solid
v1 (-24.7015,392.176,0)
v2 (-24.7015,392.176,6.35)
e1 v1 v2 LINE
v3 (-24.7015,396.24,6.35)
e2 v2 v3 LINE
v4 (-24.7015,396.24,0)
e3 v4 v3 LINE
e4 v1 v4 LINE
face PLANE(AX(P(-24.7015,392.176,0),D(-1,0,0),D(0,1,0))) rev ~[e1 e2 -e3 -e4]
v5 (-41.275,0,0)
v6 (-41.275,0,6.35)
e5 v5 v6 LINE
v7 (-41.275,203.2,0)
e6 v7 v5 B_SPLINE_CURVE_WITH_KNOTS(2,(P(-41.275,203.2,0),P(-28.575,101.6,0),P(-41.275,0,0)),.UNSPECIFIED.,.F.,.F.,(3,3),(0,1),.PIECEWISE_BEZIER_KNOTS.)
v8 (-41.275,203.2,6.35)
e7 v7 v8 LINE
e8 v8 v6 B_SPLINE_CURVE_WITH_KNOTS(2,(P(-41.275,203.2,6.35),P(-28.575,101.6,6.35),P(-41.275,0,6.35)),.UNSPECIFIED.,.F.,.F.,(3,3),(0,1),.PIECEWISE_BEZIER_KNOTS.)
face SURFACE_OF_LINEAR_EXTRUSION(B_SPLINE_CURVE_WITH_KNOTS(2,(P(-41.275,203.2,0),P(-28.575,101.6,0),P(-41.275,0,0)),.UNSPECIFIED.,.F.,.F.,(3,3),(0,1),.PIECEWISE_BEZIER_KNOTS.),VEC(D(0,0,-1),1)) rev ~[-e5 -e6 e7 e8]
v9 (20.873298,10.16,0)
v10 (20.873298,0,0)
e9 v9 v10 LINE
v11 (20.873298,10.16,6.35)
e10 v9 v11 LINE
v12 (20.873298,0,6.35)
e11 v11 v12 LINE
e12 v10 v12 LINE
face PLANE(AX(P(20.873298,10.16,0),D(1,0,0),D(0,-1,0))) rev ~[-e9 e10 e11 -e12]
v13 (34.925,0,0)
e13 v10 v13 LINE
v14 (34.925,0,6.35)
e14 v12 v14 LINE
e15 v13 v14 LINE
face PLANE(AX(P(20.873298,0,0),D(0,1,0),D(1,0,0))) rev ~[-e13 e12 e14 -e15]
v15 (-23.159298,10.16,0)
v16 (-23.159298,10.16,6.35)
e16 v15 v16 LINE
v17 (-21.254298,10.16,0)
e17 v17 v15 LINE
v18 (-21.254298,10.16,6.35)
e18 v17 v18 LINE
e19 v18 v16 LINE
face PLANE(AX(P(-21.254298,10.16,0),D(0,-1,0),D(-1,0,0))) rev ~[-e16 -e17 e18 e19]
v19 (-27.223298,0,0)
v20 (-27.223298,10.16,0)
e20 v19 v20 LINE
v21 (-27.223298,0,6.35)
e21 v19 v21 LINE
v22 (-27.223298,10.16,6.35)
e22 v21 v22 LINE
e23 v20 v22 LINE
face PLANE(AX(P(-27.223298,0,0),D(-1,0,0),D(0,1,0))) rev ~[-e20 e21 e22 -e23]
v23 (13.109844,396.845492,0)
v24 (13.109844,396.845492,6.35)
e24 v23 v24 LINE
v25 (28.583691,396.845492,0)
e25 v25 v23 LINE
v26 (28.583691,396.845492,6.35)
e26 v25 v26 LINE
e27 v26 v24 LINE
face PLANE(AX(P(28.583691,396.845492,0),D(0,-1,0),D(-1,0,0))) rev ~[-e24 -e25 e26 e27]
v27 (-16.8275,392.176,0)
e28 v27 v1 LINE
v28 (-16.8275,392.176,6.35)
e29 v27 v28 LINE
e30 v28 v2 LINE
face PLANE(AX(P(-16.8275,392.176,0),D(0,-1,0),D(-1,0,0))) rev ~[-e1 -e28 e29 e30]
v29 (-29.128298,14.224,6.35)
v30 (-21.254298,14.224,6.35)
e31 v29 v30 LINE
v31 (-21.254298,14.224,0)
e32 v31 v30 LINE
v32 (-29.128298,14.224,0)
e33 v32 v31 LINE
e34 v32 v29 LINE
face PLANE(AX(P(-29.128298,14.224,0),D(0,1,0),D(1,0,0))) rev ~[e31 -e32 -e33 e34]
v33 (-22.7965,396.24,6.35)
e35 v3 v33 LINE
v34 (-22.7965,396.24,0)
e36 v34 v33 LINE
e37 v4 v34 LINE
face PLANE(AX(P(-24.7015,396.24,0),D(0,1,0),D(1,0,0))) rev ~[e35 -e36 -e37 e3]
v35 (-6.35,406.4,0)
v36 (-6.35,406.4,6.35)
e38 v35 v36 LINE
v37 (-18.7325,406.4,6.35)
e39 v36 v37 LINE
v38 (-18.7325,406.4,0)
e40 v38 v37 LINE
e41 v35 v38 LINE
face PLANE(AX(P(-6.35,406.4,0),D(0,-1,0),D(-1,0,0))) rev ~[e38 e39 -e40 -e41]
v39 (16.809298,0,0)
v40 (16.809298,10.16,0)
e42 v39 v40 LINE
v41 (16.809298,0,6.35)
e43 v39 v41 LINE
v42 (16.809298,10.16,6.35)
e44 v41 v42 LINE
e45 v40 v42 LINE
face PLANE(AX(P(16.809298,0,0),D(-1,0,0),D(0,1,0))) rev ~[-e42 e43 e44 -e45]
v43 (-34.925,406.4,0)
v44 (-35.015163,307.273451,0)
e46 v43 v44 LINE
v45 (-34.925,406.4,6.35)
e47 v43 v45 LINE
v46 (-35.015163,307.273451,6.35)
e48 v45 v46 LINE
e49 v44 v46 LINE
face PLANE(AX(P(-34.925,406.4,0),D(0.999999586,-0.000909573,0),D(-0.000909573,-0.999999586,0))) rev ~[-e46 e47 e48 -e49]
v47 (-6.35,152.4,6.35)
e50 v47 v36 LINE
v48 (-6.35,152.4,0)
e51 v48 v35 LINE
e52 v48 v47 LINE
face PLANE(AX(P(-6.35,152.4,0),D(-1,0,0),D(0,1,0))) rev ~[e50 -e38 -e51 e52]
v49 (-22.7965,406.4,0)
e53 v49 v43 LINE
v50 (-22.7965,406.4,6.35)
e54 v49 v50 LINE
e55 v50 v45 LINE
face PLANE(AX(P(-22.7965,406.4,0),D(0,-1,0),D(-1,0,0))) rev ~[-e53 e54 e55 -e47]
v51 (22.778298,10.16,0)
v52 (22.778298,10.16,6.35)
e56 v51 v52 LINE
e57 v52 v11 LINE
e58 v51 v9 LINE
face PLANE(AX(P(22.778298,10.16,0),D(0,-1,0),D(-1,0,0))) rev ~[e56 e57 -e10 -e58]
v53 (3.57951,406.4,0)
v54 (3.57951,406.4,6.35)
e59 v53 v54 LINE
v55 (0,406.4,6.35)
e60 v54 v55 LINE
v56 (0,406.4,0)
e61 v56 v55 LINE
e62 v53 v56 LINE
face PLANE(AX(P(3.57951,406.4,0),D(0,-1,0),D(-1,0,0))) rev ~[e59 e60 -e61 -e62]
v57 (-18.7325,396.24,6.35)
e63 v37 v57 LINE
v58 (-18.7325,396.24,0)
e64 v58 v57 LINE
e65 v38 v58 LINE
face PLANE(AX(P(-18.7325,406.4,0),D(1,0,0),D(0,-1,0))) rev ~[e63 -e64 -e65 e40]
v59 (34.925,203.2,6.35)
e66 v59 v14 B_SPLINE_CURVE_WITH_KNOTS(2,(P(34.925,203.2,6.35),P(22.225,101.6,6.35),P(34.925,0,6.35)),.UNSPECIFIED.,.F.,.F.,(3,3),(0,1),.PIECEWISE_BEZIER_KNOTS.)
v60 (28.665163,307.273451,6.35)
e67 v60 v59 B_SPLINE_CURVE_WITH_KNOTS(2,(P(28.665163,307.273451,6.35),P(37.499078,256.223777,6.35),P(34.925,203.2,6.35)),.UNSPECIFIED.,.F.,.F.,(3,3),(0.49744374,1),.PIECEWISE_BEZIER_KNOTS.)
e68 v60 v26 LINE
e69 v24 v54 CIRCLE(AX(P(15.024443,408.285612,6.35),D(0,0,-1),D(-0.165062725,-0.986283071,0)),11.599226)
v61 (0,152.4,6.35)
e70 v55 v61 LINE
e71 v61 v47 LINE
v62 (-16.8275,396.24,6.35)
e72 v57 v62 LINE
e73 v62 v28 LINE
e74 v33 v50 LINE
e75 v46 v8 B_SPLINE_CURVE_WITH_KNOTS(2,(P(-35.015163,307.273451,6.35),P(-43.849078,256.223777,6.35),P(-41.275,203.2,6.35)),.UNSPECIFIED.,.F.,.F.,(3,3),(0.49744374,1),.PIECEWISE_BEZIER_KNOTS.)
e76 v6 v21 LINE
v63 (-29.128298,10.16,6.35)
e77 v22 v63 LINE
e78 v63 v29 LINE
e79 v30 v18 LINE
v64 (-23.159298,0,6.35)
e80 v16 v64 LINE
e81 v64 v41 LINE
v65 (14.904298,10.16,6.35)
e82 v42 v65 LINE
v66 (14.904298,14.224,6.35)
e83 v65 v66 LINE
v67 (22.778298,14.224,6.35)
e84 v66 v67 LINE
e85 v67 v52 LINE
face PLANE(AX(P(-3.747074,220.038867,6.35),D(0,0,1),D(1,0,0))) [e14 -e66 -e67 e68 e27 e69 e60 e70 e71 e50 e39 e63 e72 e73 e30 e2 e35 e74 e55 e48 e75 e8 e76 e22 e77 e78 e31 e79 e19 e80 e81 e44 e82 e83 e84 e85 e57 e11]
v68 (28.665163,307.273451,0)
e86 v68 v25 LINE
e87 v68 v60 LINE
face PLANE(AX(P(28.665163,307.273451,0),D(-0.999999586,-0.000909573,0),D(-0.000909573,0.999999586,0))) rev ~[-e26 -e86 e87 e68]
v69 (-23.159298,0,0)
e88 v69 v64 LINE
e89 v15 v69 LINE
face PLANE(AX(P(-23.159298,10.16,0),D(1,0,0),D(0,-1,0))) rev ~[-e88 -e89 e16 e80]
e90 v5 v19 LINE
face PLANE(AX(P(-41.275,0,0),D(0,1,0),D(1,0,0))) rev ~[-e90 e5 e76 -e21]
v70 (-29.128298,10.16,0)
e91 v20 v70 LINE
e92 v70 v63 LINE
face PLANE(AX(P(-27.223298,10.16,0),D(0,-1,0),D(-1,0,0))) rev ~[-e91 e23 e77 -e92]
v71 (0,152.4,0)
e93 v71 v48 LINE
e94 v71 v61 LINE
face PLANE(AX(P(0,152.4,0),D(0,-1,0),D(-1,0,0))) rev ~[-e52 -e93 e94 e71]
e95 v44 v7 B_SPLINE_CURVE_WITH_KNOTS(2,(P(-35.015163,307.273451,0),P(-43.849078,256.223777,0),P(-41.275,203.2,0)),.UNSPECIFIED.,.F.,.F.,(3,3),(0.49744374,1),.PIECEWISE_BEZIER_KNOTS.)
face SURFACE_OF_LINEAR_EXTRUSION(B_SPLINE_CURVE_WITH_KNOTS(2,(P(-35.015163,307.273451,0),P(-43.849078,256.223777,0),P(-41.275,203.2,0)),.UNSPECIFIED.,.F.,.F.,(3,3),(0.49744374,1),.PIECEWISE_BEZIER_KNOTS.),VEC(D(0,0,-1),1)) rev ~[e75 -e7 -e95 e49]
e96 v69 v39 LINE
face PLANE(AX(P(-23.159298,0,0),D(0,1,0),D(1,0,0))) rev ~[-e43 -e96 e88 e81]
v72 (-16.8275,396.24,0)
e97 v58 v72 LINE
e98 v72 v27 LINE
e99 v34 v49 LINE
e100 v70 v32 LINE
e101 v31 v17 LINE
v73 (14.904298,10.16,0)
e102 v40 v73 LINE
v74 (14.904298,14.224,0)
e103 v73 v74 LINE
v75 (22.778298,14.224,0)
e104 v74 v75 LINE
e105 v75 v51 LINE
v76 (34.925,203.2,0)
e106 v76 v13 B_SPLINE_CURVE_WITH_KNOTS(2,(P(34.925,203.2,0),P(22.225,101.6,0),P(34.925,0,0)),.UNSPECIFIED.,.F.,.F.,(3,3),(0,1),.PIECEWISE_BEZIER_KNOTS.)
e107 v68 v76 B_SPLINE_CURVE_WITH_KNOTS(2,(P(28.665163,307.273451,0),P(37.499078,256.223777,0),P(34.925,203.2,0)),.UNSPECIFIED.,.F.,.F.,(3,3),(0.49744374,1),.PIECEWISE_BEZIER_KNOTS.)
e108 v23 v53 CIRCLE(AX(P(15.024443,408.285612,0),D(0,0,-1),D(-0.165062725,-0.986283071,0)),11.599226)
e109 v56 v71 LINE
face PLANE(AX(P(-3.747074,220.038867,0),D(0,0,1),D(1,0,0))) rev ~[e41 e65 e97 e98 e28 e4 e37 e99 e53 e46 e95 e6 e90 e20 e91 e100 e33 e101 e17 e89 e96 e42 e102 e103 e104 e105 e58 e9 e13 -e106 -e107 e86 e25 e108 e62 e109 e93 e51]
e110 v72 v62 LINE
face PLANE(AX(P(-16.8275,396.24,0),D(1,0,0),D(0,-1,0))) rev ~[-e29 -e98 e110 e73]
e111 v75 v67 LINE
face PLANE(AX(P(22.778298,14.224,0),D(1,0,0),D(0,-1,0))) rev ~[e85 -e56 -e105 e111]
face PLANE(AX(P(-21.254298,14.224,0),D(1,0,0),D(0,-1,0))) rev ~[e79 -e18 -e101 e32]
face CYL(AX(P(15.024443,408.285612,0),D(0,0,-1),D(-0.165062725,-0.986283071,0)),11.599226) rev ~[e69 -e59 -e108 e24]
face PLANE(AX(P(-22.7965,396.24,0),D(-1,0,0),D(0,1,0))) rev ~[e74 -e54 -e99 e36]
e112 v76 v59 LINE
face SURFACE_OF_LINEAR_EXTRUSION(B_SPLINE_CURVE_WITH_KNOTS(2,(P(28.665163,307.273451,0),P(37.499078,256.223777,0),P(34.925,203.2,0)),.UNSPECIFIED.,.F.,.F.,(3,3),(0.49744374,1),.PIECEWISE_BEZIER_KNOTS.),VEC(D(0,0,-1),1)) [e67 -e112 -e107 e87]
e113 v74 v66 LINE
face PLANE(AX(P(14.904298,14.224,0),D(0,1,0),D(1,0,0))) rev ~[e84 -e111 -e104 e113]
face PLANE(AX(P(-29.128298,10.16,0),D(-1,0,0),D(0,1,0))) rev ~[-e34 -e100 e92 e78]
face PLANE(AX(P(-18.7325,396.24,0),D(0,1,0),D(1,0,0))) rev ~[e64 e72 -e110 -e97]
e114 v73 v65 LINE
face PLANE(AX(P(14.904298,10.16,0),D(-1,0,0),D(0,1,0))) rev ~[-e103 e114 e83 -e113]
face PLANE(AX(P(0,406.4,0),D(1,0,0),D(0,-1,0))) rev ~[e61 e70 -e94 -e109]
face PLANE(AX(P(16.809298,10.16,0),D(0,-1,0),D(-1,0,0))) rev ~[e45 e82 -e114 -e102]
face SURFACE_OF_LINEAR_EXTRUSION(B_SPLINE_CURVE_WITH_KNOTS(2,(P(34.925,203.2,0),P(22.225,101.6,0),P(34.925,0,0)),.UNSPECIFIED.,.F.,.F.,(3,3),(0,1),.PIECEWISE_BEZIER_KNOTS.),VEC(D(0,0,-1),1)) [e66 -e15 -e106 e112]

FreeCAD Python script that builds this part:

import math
import FreeCAD as App
import Part
import Sketcher
Q = App.Units.Quantity

doc = App.newDocument("Part")
body = doc.addObject("PartDesign::Body", "Body")

# Sketch on XY plane
sketch1 = body.newObject("Sketcher::SketchObject", "Sketch")
sketch1.AttachmentSupport = (doc.getObject("XY_Plane"), [""])
sketch1.MapMode = "FlatFace"
sketch1.addGeometry(Part.LineSegment(App.Vector(-41.275, 0, 0), App.Vector(-27.223298, 0, 0)), False)
sketch1.addGeometry(Part.LineSegment(App.Vector(-27.223298, 0, 0), App.Vector(-27.223298, 10.16, 0)), False)
sketch1.addGeometry(Part.LineSegment(App.Vector(-27.223298, 10.16, 0), App.Vector(-29.128298, 10.16, 0)), False)
sketch1.addGeometry(Part.LineSegment(App.Vector(-29.128298, 10.16, 0), App.Vector(-29.128298, 14.224, 0)), False)
sketch1.addGeometry(Part.LineSegment(App.Vector(-29.128298, 14.224, 0), App.Vector(-21.254298, 14.224, 0)), False)
sketch1.addGeometry(Part.LineSegment(App.Vector(-21.254298, 14.224, 0), App.Vector(-21.254298, 10.16, 0)), False)
sketch1.addGeometry(Part.LineSegment(App.Vector(-21.254298, 10.16, 0), App.Vector(-23.159298, 10.16, 0)), False)
sketch1.addGeometry(Part.LineSegment(App.Vector(-23.159298, 10.16, 0), App.Vector(-23.159298, 0, 0)), False)
sketch1.addGeometry(Part.LineSegment(App.Vector(-23.159298, 0, 0), App.Vector(16.809298, 0, 0)), False)
sketch1.addGeometry(Part.LineSegment(App.Vector(16.809298, 0, 0), App.Vector(16.809298, 10.16, 0)), False)
sketch1.addGeometry(Part.LineSegment(App.Vector(16.809298, 10.16, 0), App.Vector(14.904298, 10.16, 0)), False)
sketch1.addGeometry(Part.LineSegment(App.Vector(14.904298, 10.16, 0), App.Vector(14.904298, 14.224, 0)), False)
sketch1.addGeometry(Part.LineSegment(App.Vector(14.904298, 14.224, 0), App.Vector(22.778298, 14.224, 0)), False)
sketch1.addGeometry(Part.LineSegment(App.Vector(22.778298, 14.224, 0), App.Vector(22.778298, 10.16, 0)), False)
sketch1.addGeometry(Part.LineSegment(App.Vector(22.778298, 10.16, 0), App.Vector(20.873298, 10.16, 0)), False)
sketch1.addGeometry(Part.LineSegment(App.Vector(20.873298, 10.16, 0), App.Vector(20.873298, 0, 0)), False)
sketch1.addGeometry(Part.LineSegment(App.Vector(20.873298, 0, 0), App.Vector(34.925, 0, 0)), False)
sketch1.addGeometry(Part.BSplineCurve([App.Vector(34.925, 203.2, 0), App.Vector(22.225, 101.6, 0), App.Vector(34.925, 0, 0)], [3, 3], [0, 1], False, 2, [1, 1, 1], False), False)
sketch1.addGeometry(Part.BSplineCurve([App.Vector(28.665163, 307.273451, 0), App.Vector(37.499078, 256.223777, 0), App.Vector(34.925, 203.2, 0)], [3, 3], [0.49744374, 1], False, 2, [1, 1, 1], False), False)
sketch1.addGeometry(Part.LineSegment(App.Vector(28.665163, 307.273451, 0), App.Vector(28.583691, 396.845492, 0)), False)
sketch1.addGeometry(Part.LineSegment(App.Vector(28.583691, 396.845492, 0), App.Vector(13.109844, 396.845492, 0)), False)
sketch1.addGeometry(Part.ArcOfCircle(Part.Circle(App.Vector(15.024443, 408.285612, 0), App.Vector(0, 0, 1), 11.599226), math.radians(-170.644273), math.radians(-99.500878)), False)
sketch1.addGeometry(Part.LineSegment(App.Vector(3.57951, 406.4, 0), App.Vector(0, 406.4, 0)), False)
sketch1.addGeometry(Part.LineSegment(App.Vector(0, 406.4, 0), App.Vector(0, 152.4, 0)), False)
sketch1.addGeometry(Part.LineSegment(App.Vector(0, 152.4, 0), App.Vector(-6.35, 152.4, 0)), False)
sketch1.addGeometry(Part.LineSegment(App.Vector(-6.35, 152.4, 0), App.Vector(-6.35, 406.4, 0)), False)
sketch1.addGeometry(Part.LineSegment(App.Vector(-6.35, 406.4, 0), App.Vector(-18.7325, 406.4, 0)), False)
sketch1.addGeometry(Part.LineSegment(App.Vector(-18.7325, 406.4, 0), App.Vector(-18.7325, 396.24, 0)), False)
sketch1.addGeometry(Part.LineSegment(App.Vector(-18.7325, 396.24, 0), App.Vector(-16.8275, 396.24, 0)), False)
sketch1.addGeometry(Part.LineSegment(App.Vector(-16.8275, 396.24, 0), App.Vector(-16.8275, 392.176, 0)), False)
sketch1.addGeometry(Part.LineSegment(App.Vector(-16.8275, 392.176, 0), App.Vector(-24.7015, 392.176, 0)), False)
sketch1.addGeometry(Part.LineSegment(App.Vector(-24.7015, 392.176, 0), App.Vector(-24.7015, 396.24, 0)), False)
sketch1.addGeometry(Part.LineSegment(App.Vector(-24.7015, 396.24, 0), App.Vector(-22.7965, 396.24, 0)), False)
sketch1.addGeometry(Part.LineSegment(App.Vector(-22.7965, 396.24, 0), App.Vector(-22.7965, 406.4, 0)), False)
sketch1.addGeometry(Part.LineSegment(App.Vector(-22.7965, 406.4, 0), App.Vector(-34.925, 406.4, 0)), False)
sketch1.addGeometry(Part.LineSegment(App.Vector(-34.925, 406.4, 0), App.Vector(-35.015163, 307.273451, 0)), False)
sketch1.addGeometry(Part.BSplineCurve([App.Vector(-35.015163, 307.273451, 0), App.Vector(-43.849078, 256.223777, 0), App.Vector(-41.275, 203.2, 0)], [3, 3], [0.49744374, 1], False, 2, [1, 1, 1], False), False)
sketch1.addGeometry(Part.BSplineCurve([App.Vector(-41.275, 203.2, 0), App.Vector(-28.575, 101.6, 0), App.Vector(-41.275, 0, 0)], [3, 3], [0, 1], False, 2, [1, 1, 1], False), False)
sketch1.addConstraint(Sketcher.Constraint("Block", 17))
sketch1.addConstraint(Sketcher.Constraint("Block", 18))
sketch1.addConstraint(Sketcher.Constraint("Block", 36))
sketch1.addConstraint(Sketcher.Constraint("Block", 37))
sketch1.addConstraint(Sketcher.Constraint("Coincident", 0, 2, 1, 1))
sketch1.addConstraint(Sketcher.Constraint("Coincident", 1, 2, 2, 1))
sketch1.addConstraint(Sketcher.Constraint("Coincident", 2, 2, 3, 1))
sketch1.addConstraint(Sketcher.Constraint("Coincident", 3, 2, 4, 1))
sketch1.addConstraint(Sketcher.Constraint("Coincident", 4, 2, 5, 1))
sketch1.addConstraint(Sketcher.Constraint("Coincident", 5, 2, 6, 1))
sketch1.addConstraint(Sketcher.Constraint("Coincident", 6, 2, 7, 1))
sketch1.addConstraint(Sketcher.Constraint("Coincident", 7, 2, 8, 1))
sketch1.addConstraint(Sketcher.Constraint("Coincident", 8, 2, 9, 1))
sketch1.addConstraint(Sketcher.Constraint("Coincident", 9, 2, 10, 1))
sketch1.addConstraint(Sketcher.Constraint("Coincident", 10, 2, 11, 1))
sketch1.addConstraint(Sketcher.Constraint("Coincident", 11, 2, 12, 1))
sketch1.addConstraint(Sketcher.Constraint("Coincident", 12, 2, 13, 1))
sketch1.addConstraint(Sketcher.Constraint("Coincident", 13, 2, 14, 1))
sketch1.addConstraint(Sketcher.Constraint("Coincident", 14, 2, 15, 1))
sketch1.addConstraint(Sketcher.Constraint("Coincident", 15, 2, 16, 1))
sketch1.addConstraint(Sketcher.Constraint("Coincident", 16, 2, 17, 2))
sketch1.addConstraint(Sketcher.Constraint("Coincident", 18, 1, 19, 1))
sketch1.addConstraint(Sketcher.Constraint("Coincident", 19, 2, 20, 1))
sketch1.addConstraint(Sketcher.Constraint("Coincident", 20, 2, 21, 2))
sketch1.addConstraint(Sketcher.Constraint("Coincident", 21, 1, 22, 1))
sketch1.addConstraint(Sketcher.Constraint("Coincident", 22, 2, 23, 1))
sketch1.addConstraint(Sketcher.Constraint("Coincident", 23, 2, 24, 1))
sketch1.addConstraint(Sketcher.Constraint("Coincident", 24, 2, 25, 1))
sketch1.addConstraint(Sketcher.Constraint("Coincident", 25, 2, 26, 1))
sketch1.addConstraint(Sketcher.Constraint("Coincident", 26, 2, 27, 1))
sketch1.addConstraint(Sketcher.Constraint("Coincident", 27, 2, 28, 1))
sketch1.addConstraint(Sketcher.Constraint("Coincident", 28, 2, 29, 1))
sketch1.addConstraint(Sketcher.Constraint("Coincident", 29, 2, 30, 1))
sketch1.addConstraint(Sketcher.Constraint("Coincident", 30, 2, 31, 1))
sketch1.addConstraint(Sketcher.Constraint("Coincident", 31, 2, 32, 1))
sketch1.addConstraint(Sketcher.Constraint("Coincident", 32, 2, 33, 1))
sketch1.addConstraint(Sketcher.Constraint("Coincident", 33, 2, 34, 1))
sketch1.addConstraint(Sketcher.Constraint("Coincident", 34, 2, 35, 1))
sketch1.addConstraint(Sketcher.Constraint("Coincident", 35, 2, 36, 1))
sketch1.addConstraint(Sketcher.Constraint("Coincident", 37, 2, 0, 1))
sketch1.addConstraint(Sketcher.Constraint("Horizontal", 0))
sketch1.addConstraint(Sketcher.Constraint("Vertical", 1))
sketch1.addConstraint(Sketcher.Constraint("Horizontal", 2))
sketch1.addConstraint(Sketcher.Constraint("Vertical", 3))
sketch1.addConstraint(Sketcher.Constraint("Horizontal", 4))
sketch1.addConstraint(Sketcher.Constraint("Vertical", 5))
sketch1.addConstraint(Sketcher.Constraint("Horizontal", 6))
sketch1.addConstraint(Sketcher.Constraint("Vertical", 7))
sketch1.addConstraint(Sketcher.Constraint("Horizontal", 8))
sketch1.addConstraint(Sketcher.Constraint("Vertical", 9))
sketch1.addConstraint(Sketcher.Constraint("Horizontal", 10))
sketch1.addConstraint(Sketcher.Constraint("Vertical", 11))
sketch1.addConstraint(Sketcher.Constraint("Horizontal", 12))
sketch1.addConstraint(Sketcher.Constraint("Vertical", 13))
sketch1.addConstraint(Sketcher.Constraint("Horizontal", 14))
sketch1.addConstraint(Sketcher.Constraint("Vertical", 15))
sketch1.addConstraint(Sketcher.Constraint("Horizontal", 16))
sketch1.addConstraint(Sketcher.Constraint("Horizontal", 20))
sketch1.addConstraint(Sketcher.Constraint("Horizontal", 22))
sketch1.addConstraint(Sketcher.Constraint("Vertical", 23))
sketch1.addConstraint(Sketcher.Constraint("Horizontal", 24))
sketch1.addConstraint(Sketcher.Constraint("Vertical", 25))
sketch1.addConstraint(Sketcher.Constraint("Horizontal", 26))
sketch1.addConstraint(Sketcher.Constraint("Vertical", 27))
sketch1.addConstraint(Sketcher.Constraint("Horizontal", 28))
sketch1.addConstraint(Sketcher.Constraint("Vertical", 29))
sketch1.addConstraint(Sketcher.Constraint("Horizontal", 30))
sketch1.addConstraint(Sketcher.Constraint("Vertical", 31))
sketch1.addConstraint(Sketcher.Constraint("Horizontal", 32))
sketch1.addConstraint(Sketcher.Constraint("Vertical", 33))
sketch1.addConstraint(Sketcher.Constraint("Horizontal", 34))
sketch1.addConstraint(Sketcher.Constraint("PointOnObject", 7, 2, -1))
sketch1.addConstraint(Sketcher.Constraint("PointOnObject", 22, 2, -2))
sketch1.addConstraint(Sketcher.Constraint("Horizontal", 2, 2, 5, 2))
sketch1.addConstraint(Sketcher.Constraint("Horizontal", 6, 2, 9, 2))
sketch1.addConstraint(Sketcher.Constraint("Horizontal", 4, 2, 11, 2))
sketch1.addConstraint(Sketcher.Constraint("Horizontal", 10, 2, 13, 2))
sketch1.addConstraint(Sketcher.Constraint("Horizontal", 22, 2, 25, 2))
sketch1.addConstraint(Sketcher.Constraint("Horizontal", 28, 2, 31, 2))
sketch1.addConstraint(Sketcher.Constraint("Horizontal", 26, 2, 33, 2))
sketch1.addConstraint(Sketcher.Constraint("Equal", 2, 6))
sketch1.addConstraint(Sketcher.Constraint("Equal", 6, 10))
sketch1.addConstraint(Sketcher.Constraint("Equal", 4, 12))
sketch1.addConstraint(Sketcher.Constraint("Equal", 10, 14))
sketch1.addConstraint(Sketcher.Constraint("Equal", 0, 16))
sketch1.addConstraint(Sketcher.Constraint("Equal", 14, 28))
sketch1.addConstraint(Sketcher.Constraint("Equal", 12, 30))
sketch1.addConstraint(Sketcher.Constraint("Equal", 28, 32))
sketch1.addConstraint(Sketcher.Constraint("Equal", 15, 27))
sketch1.addConstraint(Sketcher.Constraint("Equal", 13, 29))
sketch1.addConstraint(Sketcher.Constraint("DistanceY", 23, 2, 23, 1, Q("10 in")))
sketch1.addConstraint(Sketcher.Constraint("DistanceY", 1, 1, 1, 2, Q("0.4 in")))
sketch1.addConstraint(Sketcher.Constraint("DistanceY", -1, 1, 21, 1, Q("16 in")))
sketch1.addConstraint(Sketcher.Constraint("DistanceX", 4, 1, 4, 2, Q("0.31 in")))
sketch1.addConstraint(Sketcher.Constraint("DistanceX", 24, 2, 24, 1, Q("0.25 in")))
sketch1.addConstraint(Sketcher.Constraint("DistanceY", 3, 1, 3, 2, Q("0.16 in")))
sketch1.addConstraint(Sketcher.Constraint("DistanceX", 2, 2, 2, 1, Q("0.075 in")))
sketch1.addConstraint(Sketcher.Constraint("DistanceX", 26, 2, 26, 1, Q("0.4875 in")))
sketch1.addConstraint(Sketcher.Constraint("DistanceX", 34, 2, 34, 1, Q("0.4775 in")))
sketch1.addConstraint(Sketcher.Constraint("Radius", 21, Q("11.599226 mm")))
sketch1.addConstraint(Sketcher.Constraint("DistanceX", 22, 2, 22, 1, Q("3.57951 mm")))
sketch1.addConstraint(Sketcher.Constraint("DistanceX", 20, 2, 21, 3, Q("1.9146 mm")))
sketch1.addConstraint(Sketcher.Constraint("DistanceX", 0, 1, 0, 2, Q("14.051702 mm")))
sketch1.addConstraint(Sketcher.Constraint("DistanceX", 20, 2, 20, 1, Q("15.473847 mm")))
sketch1.addConstraint(Sketcher.Constraint("DistanceY", -1, 1, 21, 3, Q("408.285612 mm")))
pad1 = body.newObject("PartDesign::Pad", "Pad")
pad1.Profile = sketch1
pad1.Length = Q("0.25 in")

doc.recompute()
